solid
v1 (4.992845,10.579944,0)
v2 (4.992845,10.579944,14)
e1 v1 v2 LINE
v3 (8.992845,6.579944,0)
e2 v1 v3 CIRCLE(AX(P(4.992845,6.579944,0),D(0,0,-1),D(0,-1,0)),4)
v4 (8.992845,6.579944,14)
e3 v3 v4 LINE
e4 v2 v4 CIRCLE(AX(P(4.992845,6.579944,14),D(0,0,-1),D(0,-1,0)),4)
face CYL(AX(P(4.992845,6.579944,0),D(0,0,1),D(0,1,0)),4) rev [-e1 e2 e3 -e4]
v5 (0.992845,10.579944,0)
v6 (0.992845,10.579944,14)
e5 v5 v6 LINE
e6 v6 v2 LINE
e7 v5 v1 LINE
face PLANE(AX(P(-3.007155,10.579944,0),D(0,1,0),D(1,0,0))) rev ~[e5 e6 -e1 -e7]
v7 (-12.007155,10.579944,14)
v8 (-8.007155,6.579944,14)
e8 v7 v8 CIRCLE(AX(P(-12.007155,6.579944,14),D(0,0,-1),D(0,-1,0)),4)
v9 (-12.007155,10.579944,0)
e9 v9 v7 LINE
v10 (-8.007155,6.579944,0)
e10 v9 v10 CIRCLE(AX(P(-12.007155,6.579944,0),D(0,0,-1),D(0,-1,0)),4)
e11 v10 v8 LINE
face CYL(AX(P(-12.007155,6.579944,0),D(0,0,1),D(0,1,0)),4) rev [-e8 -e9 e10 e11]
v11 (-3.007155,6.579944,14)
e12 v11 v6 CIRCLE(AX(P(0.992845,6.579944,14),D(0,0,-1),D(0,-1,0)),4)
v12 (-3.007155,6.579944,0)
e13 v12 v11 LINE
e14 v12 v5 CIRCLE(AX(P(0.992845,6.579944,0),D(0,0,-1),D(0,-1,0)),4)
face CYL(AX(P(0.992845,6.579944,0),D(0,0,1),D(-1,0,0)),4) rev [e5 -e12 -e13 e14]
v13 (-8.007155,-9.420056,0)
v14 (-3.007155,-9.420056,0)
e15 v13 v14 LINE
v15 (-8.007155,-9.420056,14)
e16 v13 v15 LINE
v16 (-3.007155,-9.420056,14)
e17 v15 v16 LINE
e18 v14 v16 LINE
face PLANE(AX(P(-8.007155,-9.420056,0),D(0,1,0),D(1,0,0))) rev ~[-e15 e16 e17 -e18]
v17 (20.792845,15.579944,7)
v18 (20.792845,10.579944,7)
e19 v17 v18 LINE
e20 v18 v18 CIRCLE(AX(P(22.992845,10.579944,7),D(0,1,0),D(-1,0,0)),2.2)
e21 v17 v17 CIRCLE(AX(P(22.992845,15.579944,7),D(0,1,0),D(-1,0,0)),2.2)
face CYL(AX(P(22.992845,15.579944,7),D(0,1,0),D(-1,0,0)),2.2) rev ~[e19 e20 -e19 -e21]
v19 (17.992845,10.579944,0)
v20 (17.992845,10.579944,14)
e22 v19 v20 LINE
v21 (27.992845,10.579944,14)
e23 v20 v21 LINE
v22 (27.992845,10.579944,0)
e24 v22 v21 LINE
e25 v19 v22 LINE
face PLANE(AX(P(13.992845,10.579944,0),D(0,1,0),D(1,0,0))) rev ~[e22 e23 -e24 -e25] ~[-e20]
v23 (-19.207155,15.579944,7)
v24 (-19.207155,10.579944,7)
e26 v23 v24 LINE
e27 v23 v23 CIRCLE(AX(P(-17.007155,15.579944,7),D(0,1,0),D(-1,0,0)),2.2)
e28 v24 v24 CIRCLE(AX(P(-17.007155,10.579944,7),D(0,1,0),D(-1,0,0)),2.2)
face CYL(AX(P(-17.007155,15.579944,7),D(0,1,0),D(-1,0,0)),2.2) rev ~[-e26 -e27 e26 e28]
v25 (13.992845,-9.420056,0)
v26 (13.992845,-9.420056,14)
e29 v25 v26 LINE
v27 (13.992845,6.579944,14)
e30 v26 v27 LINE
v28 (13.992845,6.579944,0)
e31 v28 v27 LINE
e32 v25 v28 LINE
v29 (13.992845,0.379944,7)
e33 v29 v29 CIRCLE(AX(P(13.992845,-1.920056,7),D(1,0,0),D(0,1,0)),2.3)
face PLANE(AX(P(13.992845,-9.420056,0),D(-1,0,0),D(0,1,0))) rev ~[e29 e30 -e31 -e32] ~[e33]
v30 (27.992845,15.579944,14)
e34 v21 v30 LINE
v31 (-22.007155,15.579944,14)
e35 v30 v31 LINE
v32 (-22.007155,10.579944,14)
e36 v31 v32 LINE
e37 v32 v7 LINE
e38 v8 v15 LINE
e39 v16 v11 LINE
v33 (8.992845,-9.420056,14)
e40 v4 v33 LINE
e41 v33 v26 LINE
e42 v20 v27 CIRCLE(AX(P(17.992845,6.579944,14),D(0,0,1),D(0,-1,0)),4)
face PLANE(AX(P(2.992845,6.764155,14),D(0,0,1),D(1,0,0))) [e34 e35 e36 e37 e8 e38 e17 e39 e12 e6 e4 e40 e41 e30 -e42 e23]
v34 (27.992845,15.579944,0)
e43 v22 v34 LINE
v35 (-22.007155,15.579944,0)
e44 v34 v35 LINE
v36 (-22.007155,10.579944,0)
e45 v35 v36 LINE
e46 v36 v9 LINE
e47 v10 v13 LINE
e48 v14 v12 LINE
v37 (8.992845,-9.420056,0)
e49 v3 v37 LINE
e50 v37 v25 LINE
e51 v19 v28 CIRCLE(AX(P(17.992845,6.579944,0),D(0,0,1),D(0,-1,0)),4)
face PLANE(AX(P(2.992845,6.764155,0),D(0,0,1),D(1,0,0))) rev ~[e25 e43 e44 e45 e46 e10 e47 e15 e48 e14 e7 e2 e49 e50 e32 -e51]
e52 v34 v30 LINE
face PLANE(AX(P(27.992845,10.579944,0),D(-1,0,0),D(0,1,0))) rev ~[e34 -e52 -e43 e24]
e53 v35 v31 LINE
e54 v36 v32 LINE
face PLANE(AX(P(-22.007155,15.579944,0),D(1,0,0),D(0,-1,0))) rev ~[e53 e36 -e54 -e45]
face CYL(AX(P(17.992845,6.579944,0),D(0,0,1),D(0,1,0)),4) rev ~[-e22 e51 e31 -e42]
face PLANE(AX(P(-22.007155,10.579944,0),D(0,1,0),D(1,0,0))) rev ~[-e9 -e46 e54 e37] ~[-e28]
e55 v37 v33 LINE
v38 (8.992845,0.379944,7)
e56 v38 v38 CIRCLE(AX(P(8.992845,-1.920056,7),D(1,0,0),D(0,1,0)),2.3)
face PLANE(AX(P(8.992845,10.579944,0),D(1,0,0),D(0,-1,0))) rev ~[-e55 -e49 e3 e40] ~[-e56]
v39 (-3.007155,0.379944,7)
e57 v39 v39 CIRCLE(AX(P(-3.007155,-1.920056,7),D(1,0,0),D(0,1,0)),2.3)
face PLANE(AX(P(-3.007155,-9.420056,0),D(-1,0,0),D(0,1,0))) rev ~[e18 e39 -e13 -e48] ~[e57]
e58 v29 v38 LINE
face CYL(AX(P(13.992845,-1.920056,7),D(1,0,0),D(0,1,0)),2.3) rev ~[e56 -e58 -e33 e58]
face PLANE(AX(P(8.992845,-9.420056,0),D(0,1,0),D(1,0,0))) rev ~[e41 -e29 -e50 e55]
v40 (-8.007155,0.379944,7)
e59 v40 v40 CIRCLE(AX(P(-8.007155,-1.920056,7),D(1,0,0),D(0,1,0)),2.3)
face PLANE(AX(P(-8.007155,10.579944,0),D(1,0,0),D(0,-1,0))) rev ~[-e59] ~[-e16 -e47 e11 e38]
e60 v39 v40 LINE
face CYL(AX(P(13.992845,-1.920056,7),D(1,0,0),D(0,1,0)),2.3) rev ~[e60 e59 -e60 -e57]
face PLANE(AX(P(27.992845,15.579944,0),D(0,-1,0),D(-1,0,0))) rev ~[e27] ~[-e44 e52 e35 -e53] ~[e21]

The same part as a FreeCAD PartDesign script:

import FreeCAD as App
import Part
import Sketcher

V = App.Vector


def edges_at(feature, points):
    """Names of the edges that pass closest to the given points."""
    edges = feature.Shape.Edges
    near = lambda p: min(range(len(edges)), key=lambda i: edges[i].distToShape(Part.Vertex(*p))[0])
    return sorted({f"Edge{near(p) + 1}" for p in points})

doc = App.newDocument("Part")
params = doc.addObject("Spreadsheet::Sheet", "Params")
for row, (alias, value) in enumerate([
    ("sketch1_width", "50 mm"),
    ("sketch1_width2", "14 mm"),
    ("sketch1_width3", "5 mm"),
    ("sketch1_height", "20 mm"),
    ("pad1_length", "14 mm"),
    ("sketch2_diameter", "4.6 mm"),
    ("sketch3_diameter", "4.4 mm"),
    ("fillet_radius", "4 mm"),
], start=1):
    params.set(f"A{row}", alias)
    params.set(f"B{row}", "=" + value)
    params.setAlias(f"B{row}", alias)

body = doc.addObject("PartDesign::Body", "Body")

# Sketch on XY plane
sketch1 = doc.addObject("Sketcher::SketchObject", "Sketch")
body.addObject(sketch1)
sketch1.AttachmentSupport = (doc.XY_Plane, [""])
sketch1.MapMode = "FlatFace"
sketch1.addGeometry([
    Part.LineSegment(V(28, 15.6, 0), V(-22, 15.6, 0)),  # 0
    Part.LineSegment(V(-22, 15.6, 0), V(-22, 10.6, 0)),  # 1
    Part.LineSegment(V(-22, 10.6, 0), V(-8, 10.6, 0)),  # 2
    Part.LineSegment(V(-8, 10.6, 0), V(-8, -9.4, 0)),  # 3
    Part.LineSegment(V(-8, -9.4, 0), V(-3, -9.4, 0)),  # 4
    Part.LineSegment(V(-3, -9.4, 0), V(-3, 10.6, 0)),  # 5
    Part.LineSegment(V(-3, 10.6, 0), V(9, 10.6, 0)),  # 6
    Part.LineSegment(V(9, 10.6, 0), V(9, -9.4, 0)),  # 7
    Part.LineSegment(V(9, -9.4, 0), V(14, -9.4, 0)),  # 8
    Part.LineSegment(V(14, -9.4, 0), V(14, 10.6, 0)),  # 9
    Part.LineSegment(V(14, 10.6, 0), V(28, 10.6, 0)),  # 10
    Part.LineSegment(V(28, 10.6, 0), V(28, 15.6, 0)),  # 11
], False)
sketch1.addConstraint([
    Sketcher.Constraint("Coincident", 0, 2, 1, 1),
    Sketcher.Constraint("Coincident", 1, 2, 2, 1),
    Sketcher.Constraint("Coincident", 2, 2, 3, 1),
    Sketcher.Constraint("Coincident", 3, 2, 4, 1),
    Sketcher.Constraint("Coincident", 4, 2, 5, 1),
    Sketcher.Constraint("Coincident", 5, 2, 6, 1),
    Sketcher.Constraint("Coincident", 6, 2, 7, 1),
    Sketcher.Constraint("Coincident", 7, 2, 8, 1),
    Sketcher.Constraint("Coincident", 8, 2, 9, 1),
    Sketcher.Constraint("Coincident", 9, 2, 10, 1),
    Sketcher.Constraint("Coincident", 10, 2, 11, 1),
    Sketcher.Constraint("Coincident", 11, 2, 0, 1),
    Sketcher.Constraint("Horizontal", 0),
    Sketcher.Constraint("Vertical", 1),
    Sketcher.Constraint("Horizontal", 2),
    Sketcher.Constraint("Vertical", 3),
    Sketcher.Constraint("Horizontal", 4),
    Sketcher.Constraint("Vertical", 5),
    Sketcher.Constraint("Horizontal", 6),
    Sketcher.Constraint("Vertical", 7),
    Sketcher.Constraint("Horizontal", 8),
    Sketcher.Constraint("Vertical", 9),
    Sketcher.Constraint("Horizontal", 10),
    Sketcher.Constraint("Vertical", 11),
    Sketcher.Constraint("Horizontal", 2, 2, 5, 2),
    Sketcher.Constraint("Horizontal", 4, 2, 7, 2),
    Sketcher.Constraint("Horizontal", 6, 2, 9, 2),
    Sketcher.Constraint("Equal", 4, 8),
    Sketcher.Constraint("Equal", 2, 10),
    Sketcher.Constraint("Equal", 8, 1),
    Sketcher.Constraint("DistanceX", 0, 2, 0, 1, 50.0),
    Sketcher.Constraint("DistanceX", 2, 1, 2, 2, 14.0),
    Sketcher.Constraint("DistanceX", 4, 1, 4, 2, 5.0),
    Sketcher.Constraint("DistanceY", 3, 2, 3, 1, 20.0),
    Sketcher.Constraint("DistanceX", 0, 2, -1, 1, 22.007155),
    Sketcher.Constraint("DistanceY", -1, 1, 0, 2, 15.579944),
])
sketch1.setExpression("Constraints[30]", "Params.sketch1_width")
sketch1.setExpression("Constraints[31]", "Params.sketch1_width2")
sketch1.setExpression("Constraints[32]", "Params.sketch1_width3")
sketch1.setExpression("Constraints[33]", "Params.sketch1_height")
pad1 = doc.addObject("PartDesign::Pad", "Pad")
body.addObject(pad1)
pad1.Profile = sketch1
pad1.setExpression("Length", "Params.pad1_length")

# Sketch on YZ plane
sketch2 = doc.addObject("Sketcher::SketchObject", "Sketch001")
body.addObject(sketch2)
sketch2.AttachmentSupport = (doc.YZ_Plane, [""])
sketch2.MapMode = "FlatFace"
sketch2.AttachmentOffset = App.Placement(V(0, 0, 13.992845), App.Rotation())
sketch2.addGeometry(Part.Circle(V(-1.9, 7, 0), V(0, 0, 1), 2.3), False)
sketch2.addConstraint([
    Sketcher.Constraint("Diameter", 0, 4.6),
    Sketcher.Constraint("DistanceY", -1, 1, 0, 3, 7.0),
    Sketcher.Constraint("DistanceX", 0, 3, -1, 1, 1.920056),
])
sketch2.setExpression("Constraints[0]", "Params.sketch2_diameter")
pocket1 = doc.addObject("PartDesign::Pocket", "Pocket")
body.addObject(pocket1)
pocket1.Profile = sketch2
pocket1.Type = "ThroughAll"

# Sketch on XZ plane
sketch3 = doc.addObject("Sketcher::SketchObject", "Sketch002")
body.addObject(sketch3)
sketch3.AttachmentSupport = (doc.XZ_Plane, [""])
sketch3.MapMode = "FlatFace"
sketch3.AttachmentOffset = App.Placement(V(0, 0, -15.579944), App.Rotation())
sketch3.addGeometry([
    Part.Circle(V(23, 7, 0), V(0, 0, 1), 2.2),
    Part.Circle(V(-17, 7, 0), V(0, 0, 1), 2.2),
], False)
sketch3.addConstraint([
    Sketcher.Constraint("Equal", 0, 1),
    Sketcher.Constraint("Horizontal", 0, 3, 1, 3),
    Sketcher.Constraint("Diameter", 0, 4.4),
    Sketcher.Constraint("DistanceY", -1, 1, 0, 3, 7.0),
    Sketcher.Constraint("DistanceX", 1, 3, 0, 3, 40.0),
    Sketcher.Constraint("DistanceX", -1, 1, 0, 3, 22.992845),
])
sketch3.setExpression("Constraints[2]", "Params.sketch3_diameter")
pocket2 = doc.addObject("PartDesign::Pocket", "Pocket001")
body.addObject(pocket2)
pocket2.Profile = sketch3
pocket2.Type = "ThroughAll"
pocket2.Reversed = True
doc.recompute()

fillet = doc.addObject("PartDesign::Fillet", "Fillet")
body.addObject(fillet)
fillet.Base = (pocket2, edges_at(pocket2, [
    (13.993, 10.58, 7),
    (-8.007, 10.58, 7),
    (8.993, 10.58, 7),
    (-3.007, 10.58, 7),
]))
fillet.setExpression("Radius", "Params.fillet_radius")

doc.recompute()
